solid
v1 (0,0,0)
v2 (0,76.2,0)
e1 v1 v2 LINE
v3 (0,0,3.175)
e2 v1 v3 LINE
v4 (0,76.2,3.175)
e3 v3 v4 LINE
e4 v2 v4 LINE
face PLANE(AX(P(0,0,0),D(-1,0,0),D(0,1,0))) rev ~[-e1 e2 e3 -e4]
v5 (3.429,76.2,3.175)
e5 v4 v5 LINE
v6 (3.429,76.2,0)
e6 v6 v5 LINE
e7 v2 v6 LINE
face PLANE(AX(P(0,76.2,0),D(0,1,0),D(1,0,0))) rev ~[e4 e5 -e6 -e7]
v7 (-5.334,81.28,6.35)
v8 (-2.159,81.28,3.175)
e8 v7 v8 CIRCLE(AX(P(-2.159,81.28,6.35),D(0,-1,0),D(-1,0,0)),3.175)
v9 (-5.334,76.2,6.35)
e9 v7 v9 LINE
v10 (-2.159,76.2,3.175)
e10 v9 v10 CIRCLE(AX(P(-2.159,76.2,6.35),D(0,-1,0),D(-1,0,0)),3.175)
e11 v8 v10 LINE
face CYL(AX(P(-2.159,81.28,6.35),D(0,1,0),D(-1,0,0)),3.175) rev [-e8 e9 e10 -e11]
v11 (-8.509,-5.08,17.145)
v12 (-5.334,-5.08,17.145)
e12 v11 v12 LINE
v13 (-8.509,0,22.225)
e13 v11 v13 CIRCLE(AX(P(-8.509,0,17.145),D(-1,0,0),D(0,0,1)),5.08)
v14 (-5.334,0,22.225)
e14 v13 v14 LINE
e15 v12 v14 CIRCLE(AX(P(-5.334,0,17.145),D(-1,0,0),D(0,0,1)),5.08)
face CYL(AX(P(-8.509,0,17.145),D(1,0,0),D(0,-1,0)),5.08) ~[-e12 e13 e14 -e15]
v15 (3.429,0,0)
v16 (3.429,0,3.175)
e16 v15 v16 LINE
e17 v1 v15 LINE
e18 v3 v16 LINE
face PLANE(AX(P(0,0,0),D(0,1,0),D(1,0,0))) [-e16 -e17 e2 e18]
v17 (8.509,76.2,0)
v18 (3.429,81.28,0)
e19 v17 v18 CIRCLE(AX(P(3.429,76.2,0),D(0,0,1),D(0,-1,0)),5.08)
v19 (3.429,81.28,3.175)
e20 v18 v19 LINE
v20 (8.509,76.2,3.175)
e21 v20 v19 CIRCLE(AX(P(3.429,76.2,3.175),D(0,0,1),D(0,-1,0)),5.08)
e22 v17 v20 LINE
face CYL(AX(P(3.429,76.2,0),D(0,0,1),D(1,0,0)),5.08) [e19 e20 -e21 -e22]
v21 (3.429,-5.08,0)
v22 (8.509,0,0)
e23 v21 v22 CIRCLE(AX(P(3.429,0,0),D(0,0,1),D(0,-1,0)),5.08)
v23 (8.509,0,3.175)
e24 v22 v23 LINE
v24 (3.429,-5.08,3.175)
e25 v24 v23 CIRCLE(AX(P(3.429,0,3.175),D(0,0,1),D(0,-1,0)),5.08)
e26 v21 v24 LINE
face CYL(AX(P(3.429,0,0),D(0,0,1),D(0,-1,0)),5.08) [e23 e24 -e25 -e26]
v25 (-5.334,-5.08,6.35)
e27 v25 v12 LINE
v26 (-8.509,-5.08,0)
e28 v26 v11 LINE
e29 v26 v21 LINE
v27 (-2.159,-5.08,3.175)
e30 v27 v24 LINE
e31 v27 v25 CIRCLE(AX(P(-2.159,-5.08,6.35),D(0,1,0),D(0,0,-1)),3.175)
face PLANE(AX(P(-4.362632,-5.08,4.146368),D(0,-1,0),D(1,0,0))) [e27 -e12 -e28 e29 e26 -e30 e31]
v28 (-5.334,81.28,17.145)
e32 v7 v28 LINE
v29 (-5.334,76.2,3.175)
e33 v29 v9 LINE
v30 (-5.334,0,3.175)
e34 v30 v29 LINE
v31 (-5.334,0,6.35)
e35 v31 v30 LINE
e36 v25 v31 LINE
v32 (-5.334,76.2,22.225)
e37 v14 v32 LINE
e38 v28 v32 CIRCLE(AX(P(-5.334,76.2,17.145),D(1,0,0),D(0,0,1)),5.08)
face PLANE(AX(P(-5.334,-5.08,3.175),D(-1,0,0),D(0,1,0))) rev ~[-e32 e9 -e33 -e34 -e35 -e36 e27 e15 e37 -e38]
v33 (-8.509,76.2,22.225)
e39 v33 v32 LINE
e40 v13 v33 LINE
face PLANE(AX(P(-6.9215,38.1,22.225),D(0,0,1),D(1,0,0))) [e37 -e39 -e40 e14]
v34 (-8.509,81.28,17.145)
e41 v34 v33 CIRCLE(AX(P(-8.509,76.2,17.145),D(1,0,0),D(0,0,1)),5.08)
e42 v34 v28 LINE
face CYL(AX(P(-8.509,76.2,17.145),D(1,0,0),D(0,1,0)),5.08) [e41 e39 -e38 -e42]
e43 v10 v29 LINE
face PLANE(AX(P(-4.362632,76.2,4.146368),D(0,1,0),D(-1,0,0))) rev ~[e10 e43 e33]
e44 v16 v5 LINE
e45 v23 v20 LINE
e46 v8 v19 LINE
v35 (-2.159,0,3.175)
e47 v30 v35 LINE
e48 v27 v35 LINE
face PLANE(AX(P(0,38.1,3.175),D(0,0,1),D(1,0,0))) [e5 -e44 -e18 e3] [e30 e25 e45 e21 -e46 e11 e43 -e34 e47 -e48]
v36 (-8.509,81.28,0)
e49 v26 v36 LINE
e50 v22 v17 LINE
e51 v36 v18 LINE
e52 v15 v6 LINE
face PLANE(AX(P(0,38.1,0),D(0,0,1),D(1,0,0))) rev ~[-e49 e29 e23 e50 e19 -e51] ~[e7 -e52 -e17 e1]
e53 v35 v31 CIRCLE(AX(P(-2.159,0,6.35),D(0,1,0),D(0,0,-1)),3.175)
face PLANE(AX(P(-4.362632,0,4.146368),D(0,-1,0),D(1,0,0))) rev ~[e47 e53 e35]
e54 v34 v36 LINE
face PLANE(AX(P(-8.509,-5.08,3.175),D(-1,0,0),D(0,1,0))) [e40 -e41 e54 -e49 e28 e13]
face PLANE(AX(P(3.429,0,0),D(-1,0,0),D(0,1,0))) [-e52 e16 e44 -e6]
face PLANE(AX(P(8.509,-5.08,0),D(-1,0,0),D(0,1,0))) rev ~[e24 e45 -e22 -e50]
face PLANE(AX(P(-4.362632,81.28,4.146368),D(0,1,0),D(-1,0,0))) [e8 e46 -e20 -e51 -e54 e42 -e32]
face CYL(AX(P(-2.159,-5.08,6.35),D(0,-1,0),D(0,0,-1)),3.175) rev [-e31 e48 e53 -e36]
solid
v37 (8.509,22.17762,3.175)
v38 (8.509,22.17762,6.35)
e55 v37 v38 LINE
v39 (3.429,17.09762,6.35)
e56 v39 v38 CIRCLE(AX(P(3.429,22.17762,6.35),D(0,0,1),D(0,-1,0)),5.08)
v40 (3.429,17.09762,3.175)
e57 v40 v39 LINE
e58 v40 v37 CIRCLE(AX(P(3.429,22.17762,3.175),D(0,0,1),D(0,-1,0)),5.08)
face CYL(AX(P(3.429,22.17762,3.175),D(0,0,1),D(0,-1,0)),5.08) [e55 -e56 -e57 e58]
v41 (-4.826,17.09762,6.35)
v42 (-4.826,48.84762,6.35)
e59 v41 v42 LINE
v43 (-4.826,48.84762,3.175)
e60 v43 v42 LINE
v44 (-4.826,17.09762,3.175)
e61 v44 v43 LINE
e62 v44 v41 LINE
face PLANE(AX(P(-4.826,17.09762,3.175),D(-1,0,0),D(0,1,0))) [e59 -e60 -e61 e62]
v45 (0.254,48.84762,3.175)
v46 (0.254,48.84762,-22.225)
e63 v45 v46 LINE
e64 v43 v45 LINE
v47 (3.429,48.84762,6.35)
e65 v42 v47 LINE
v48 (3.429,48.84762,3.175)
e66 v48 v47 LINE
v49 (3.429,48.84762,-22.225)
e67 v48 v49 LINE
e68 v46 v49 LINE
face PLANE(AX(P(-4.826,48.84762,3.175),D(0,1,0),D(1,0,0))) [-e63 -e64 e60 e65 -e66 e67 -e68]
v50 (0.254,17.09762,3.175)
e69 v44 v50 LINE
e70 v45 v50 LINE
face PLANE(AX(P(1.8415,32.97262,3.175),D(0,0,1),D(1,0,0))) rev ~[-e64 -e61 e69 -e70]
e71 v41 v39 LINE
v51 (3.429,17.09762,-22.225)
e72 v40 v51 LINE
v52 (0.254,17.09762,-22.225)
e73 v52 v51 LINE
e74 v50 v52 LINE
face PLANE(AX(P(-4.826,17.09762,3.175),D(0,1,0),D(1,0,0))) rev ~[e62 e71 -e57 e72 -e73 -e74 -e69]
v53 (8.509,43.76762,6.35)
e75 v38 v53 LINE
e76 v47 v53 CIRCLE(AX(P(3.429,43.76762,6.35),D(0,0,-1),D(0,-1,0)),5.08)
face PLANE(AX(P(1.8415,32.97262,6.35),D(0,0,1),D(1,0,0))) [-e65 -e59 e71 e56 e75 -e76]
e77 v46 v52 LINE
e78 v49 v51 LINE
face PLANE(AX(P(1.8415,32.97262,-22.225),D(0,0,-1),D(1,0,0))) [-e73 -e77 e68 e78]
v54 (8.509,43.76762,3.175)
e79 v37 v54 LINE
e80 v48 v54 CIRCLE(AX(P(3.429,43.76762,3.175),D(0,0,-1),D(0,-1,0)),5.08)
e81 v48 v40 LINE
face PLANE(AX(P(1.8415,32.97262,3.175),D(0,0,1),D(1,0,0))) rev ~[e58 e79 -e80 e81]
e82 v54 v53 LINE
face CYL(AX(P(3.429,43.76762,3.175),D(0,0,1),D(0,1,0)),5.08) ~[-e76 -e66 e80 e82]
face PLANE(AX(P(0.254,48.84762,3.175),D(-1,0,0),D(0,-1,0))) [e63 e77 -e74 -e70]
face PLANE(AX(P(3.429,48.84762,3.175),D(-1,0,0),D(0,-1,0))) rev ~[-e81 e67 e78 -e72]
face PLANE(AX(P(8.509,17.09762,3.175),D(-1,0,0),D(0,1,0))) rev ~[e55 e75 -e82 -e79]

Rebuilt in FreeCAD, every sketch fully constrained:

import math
import FreeCAD as App
import Part
import Sketcher
from FreeCAD import Vector
Q = App.Units.Quantity


def edges_at(feature, points):
    """Names of the edges that pass closest to the given points."""
    edges = feature.Shape.Edges
    near = lambda p: min(range(len(edges)), key=lambda i: edges[i].distToShape(Part.Vertex(*p))[0])
    return sorted({f"Edge{near(p) + 1}" for p in points})


def add_polygon(sketch, points):
    """Adds a closed chain of lines whose ends are joined by coincident constraints."""
    first, n = sketch.GeometryCount, len(points)
    for a, b in zip(points, points[1:] + points[:1]):
        sketch.addGeometry(Part.LineSegment(App.Vector(*a, 0), App.Vector(*b, 0)), False)
    for i in range(n):
        sketch.addConstraint(Sketcher.Constraint("Coincident", first + i, 2, first + (i + 1) % n, 1))

doc = App.newDocument("Part")
body = doc.addObject("PartDesign::Body", "Body")

# Sketch on XY plane
sketch1 = body.newObject("Sketcher::SketchObject", "Sketch")
sketch1.AttachmentSupport = (doc.getObject("XY_Plane"), [""])
sketch1.MapMode = "FlatFace"
add_polygon(sketch1, [(-8.509, 81.28), (-8.509, -5.08), (8.509, -5.08), (8.509, 81.28)])  # lines 0-3
add_polygon(sketch1, [(3.429, 0), (0, 0), (0, 76.2), (3.429, 76.2)])  # lines 4-7
sketch1.addConstraint([
    Sketcher.Constraint("Vertical", 0),
    Sketcher.Constraint("Horizontal", 1),
    Sketcher.Constraint("Vertical", 2),
    Sketcher.Constraint("Horizontal", 3),
    Sketcher.Constraint("Horizontal", 4),
    Sketcher.Constraint("Vertical", 5),
    Sketcher.Constraint("Horizontal", 6),
    Sketcher.Constraint("Vertical", 7),
    Sketcher.Constraint("Coincident", 4, 2, -1, 1),
    Sketcher.Constraint("DistanceY", 5, 1, 5, 2, Q("3 in")),
    Sketcher.Constraint("DistanceY", 0, 2, 0, 1, Q("3.4 in")),
    Sketcher.Constraint("DistanceX", 1, 1, 1, 2, Q("0.67 in")),
    Sketcher.Constraint("DistanceY", 0, 2, -1, 1, Q("0.2 in")),
    Sketcher.Constraint("DistanceX", 6, 2, 2, 2, Q("0.2 in")),
    Sketcher.Constraint("DistanceX", 4, 2, 4, 1, Q("0.135 in")),
])
pad1 = body.newObject("PartDesign::Pad", "Pad")
pad1.Profile = sketch1
pad1.Length = Q("0.125 in")

# Sketch on XY plane
sketch2 = body.newObject("Sketcher::SketchObject", "Sketch001")
sketch2.AttachmentSupport = (doc.getObject("XY_Plane"), [""])
sketch2.MapMode = "FlatFace"
sketch2.AttachmentOffset = App.Placement(Vector(0, 0, 0.125 * 25.4), App.Rotation())
add_polygon(sketch2, [(-8.509, 81.28), (-8.509, -5.08), (-5.334, -5.08), (-5.334, 81.28)])  # lines 0-3
sketch2.addConstraint([
    Sketcher.Constraint("Vertical", 0),
    Sketcher.Constraint("Horizontal", 1),
    Sketcher.Constraint("Vertical", 2),
    Sketcher.Constraint("Horizontal", 3),
    Sketcher.Constraint("DistanceY", 0, 2, 0, 1, Q("3.4 in")),
    Sketcher.Constraint("DistanceY", 0, 2, -1, 1, Q("0.2 in")),
    Sketcher.Constraint("DistanceX", 1, 1, 1, 2, Q("0.125 in")),
    Sketcher.Constraint("DistanceX", 1, 2, -1, 1, Q("0.21 in")),
])
pad2 = body.newObject("PartDesign::Pad", "Pad001")
pad2.Profile = sketch2
pad2.Length = Q("0.75 in")
doc.recompute()

fillet = body.newObject("PartDesign::Fillet", "Fillet")
fillet.Base = (pad2, edges_at(pad2, [
    (8.509, -5.08, 1.587),
    (8.509, 81.28, 1.587),
    (-6.921, -5.08, 22.225),
    (-6.921, 81.28, 22.225),
]))
fillet.Radius = Q("0.2 in")

# Sketch on XZ plane
sketch3 = body.newObject("Sketcher::SketchObject", "Sketch002")
sketch3.AttachmentSupport = (doc.getObject("XZ_Plane"), [""])
sketch3.MapMode = "FlatFace"
sketch3.AttachmentOffset = App.Placement(Vector(0, 0, 0.2 * 25.4), App.Rotation())
sketch3.addGeometry([
    Part.LineSegment(Vector(-5.334, 6.35, 0), Vector(-5.334, 3.175, 0)),
    Part.LineSegment(Vector(-5.334, 3.175, 0), Vector(-2.159, 3.175, 0)),
    Part.ArcOfCircle(Part.Circle(Vector(-2.159, 6.35, 0), Vector(0, 0, 1), 3.175), math.radians(180), math.radians(270)),
], False)
sketch3.addConstraint([
    Sketcher.Constraint("Coincident", 0, 2, 1, 1),
    Sketcher.Constraint("Tangent", 1, 2, 2, 2),
    Sketcher.Constraint("Tangent", 2, 1, 0, 1),
    Sketcher.Constraint("Vertical", 0),
    Sketcher.Constraint("Horizontal", 1),
    Sketcher.Constraint("Radius", 2, Q("0.125 in")),
    Sketcher.Constraint("DistanceY", -1, 1, 2, 3, Q("0.25 in")),
    Sketcher.Constraint("DistanceX", 0, 2, -1, 1, Q("0.21 in")),
])
pad3 = body.newObject("PartDesign::Pad", "Pad002")
pad3.Profile = sketch3
pad3.Length = Q("0.2 in")
pad3.Reversed = True

# Sketch on XZ plane
sketch4 = body.newObject("Sketcher::SketchObject", "Sketch003")
sketch4.AttachmentSupport = (doc.getObject("XZ_Plane"), [""])
sketch4.MapMode = "FlatFace"
sketch4.AttachmentOffset = App.Placement(Vector(0, 0, -3.2 * 25.4), App.Rotation())
sketch4.addGeometry([
    Part.LineSegment(Vector(-5.334, 3.175, 0), Vector(-5.334, 6.35, 0)),
    Part.ArcOfCircle(Part.Circle(Vector(-2.159, 6.35, 0), Vector(0, 0, 1), 3.175), math.radians(180), math.radians(270)),
    Part.LineSegment(Vector(-2.159, 3.175, 0), Vector(-5.334, 3.175, 0)),
], False)
sketch4.addConstraint([
    Sketcher.Constraint("Tangent", 0, 2, 1, 1),
    Sketcher.Constraint("Tangent", 1, 2, 2, 1),
    Sketcher.Constraint("Coincident", 2, 2, 0, 1),
    Sketcher.Constraint("Vertical", 0),
    Sketcher.Constraint("Horizontal", 2),
    Sketcher.Constraint("Radius", 1, Q("0.125 in")),
    Sketcher.Constraint("DistanceY", -1, 1, 1, 3, Q("0.25 in")),
    Sketcher.Constraint("DistanceX", 0, 2, -1, 1, Q("0.21 in")),
])
pad4 = body.newObject("PartDesign::Pad", "Pad003")
pad4.Profile = sketch4
pad4.Length = Q("0.2 in")
body2 = doc.addObject("PartDesign::Body", "Body001")

# Sketch on XY plane
sketch5 = body2.newObject("Sketcher::SketchObject", "Sketch004")
sketch5.AttachmentSupport = (doc.getObject("XY_Plane001"), [""])
sketch5.MapMode = "FlatFace"
sketch5.AttachmentOffset = App.Placement(Vector(0, 0, 0.125 * 25.4), App.Rotation())
add_polygon(sketch5, [(-4.826, 48.84762), (-4.826, 17.09762), (8.509, 17.09762), (8.509, 48.84762)])  # lines 0-3
sketch5.addConstraint([
    Sketcher.Constraint("Vertical", 0),
    Sketcher.Constraint("Horizontal", 1),
    Sketcher.Constraint("Vertical", 2),
    Sketcher.Constraint("Horizontal", 3),
    Sketcher.Constraint("DistanceY", 0, 2, 0, 1, Q("1.25 in")),
    Sketcher.Constraint("DistanceX", 1, 1, 1, 2, Q("0.525 in")),
    Sketcher.Constraint("DistanceX", 0, 2, -1, 1, Q("0.19 in")),
    Sketcher.Constraint("DistanceY", -1, 1, 0, 2, 17.09762),
])
pad5 = body2.newObject("PartDesign::Pad", "Pad004")
pad5.Profile = sketch5
pad5.Length = Q("0.125 in")

# Sketch on XY plane
sketch6 = body2.newObject("Sketcher::SketchObject", "Sketch005")
sketch6.AttachmentSupport = (doc.getObject("XY_Plane001"), [""])
sketch6.MapMode = "FlatFace"
sketch6.AttachmentOffset = App.Placement(Vector(0, 0, 0.125 * 25.4), App.Rotation())
add_polygon(sketch6, [(0.254, 17.09762), (0.254, 48.84762), (3.429, 48.84762), (3.429, 17.09762)])  # lines 0-3
sketch6.addConstraint([
    Sketcher.Constraint("Vertical", 0),
    Sketcher.Constraint("Horizontal", 1),
    Sketcher.Constraint("Vertical", 2),
    Sketcher.Constraint("Horizontal", 3),
    Sketcher.Constraint("DistanceY", 0, 1, 0, 2, Q("1.25 in")),
    Sketcher.Constraint("DistanceX", 1, 1, 1, 2, Q("0.125 in")),
    Sketcher.Constraint("DistanceX", -1, 1, 0, 2, Q("0.01 in")),
    Sketcher.Constraint("DistanceY", -1, 1, 0, 2, 48.84762),
])
pad6 = body2.newObject("PartDesign::Pad", "Pad005")
pad6.Profile = sketch6
pad6.Length = Q("1 in")
pad6.Reversed = True
doc.recompute()

fillet2 = body2.newObject("PartDesign::Fillet", "Fillet001")
fillet2.Base = (pad6, edges_at(pad6, [(8.509, 17.098, 4.763), (8.509, 48.848, 4.763)]))
fillet2.Radius = Q("0.2 in")

doc.recompute()
